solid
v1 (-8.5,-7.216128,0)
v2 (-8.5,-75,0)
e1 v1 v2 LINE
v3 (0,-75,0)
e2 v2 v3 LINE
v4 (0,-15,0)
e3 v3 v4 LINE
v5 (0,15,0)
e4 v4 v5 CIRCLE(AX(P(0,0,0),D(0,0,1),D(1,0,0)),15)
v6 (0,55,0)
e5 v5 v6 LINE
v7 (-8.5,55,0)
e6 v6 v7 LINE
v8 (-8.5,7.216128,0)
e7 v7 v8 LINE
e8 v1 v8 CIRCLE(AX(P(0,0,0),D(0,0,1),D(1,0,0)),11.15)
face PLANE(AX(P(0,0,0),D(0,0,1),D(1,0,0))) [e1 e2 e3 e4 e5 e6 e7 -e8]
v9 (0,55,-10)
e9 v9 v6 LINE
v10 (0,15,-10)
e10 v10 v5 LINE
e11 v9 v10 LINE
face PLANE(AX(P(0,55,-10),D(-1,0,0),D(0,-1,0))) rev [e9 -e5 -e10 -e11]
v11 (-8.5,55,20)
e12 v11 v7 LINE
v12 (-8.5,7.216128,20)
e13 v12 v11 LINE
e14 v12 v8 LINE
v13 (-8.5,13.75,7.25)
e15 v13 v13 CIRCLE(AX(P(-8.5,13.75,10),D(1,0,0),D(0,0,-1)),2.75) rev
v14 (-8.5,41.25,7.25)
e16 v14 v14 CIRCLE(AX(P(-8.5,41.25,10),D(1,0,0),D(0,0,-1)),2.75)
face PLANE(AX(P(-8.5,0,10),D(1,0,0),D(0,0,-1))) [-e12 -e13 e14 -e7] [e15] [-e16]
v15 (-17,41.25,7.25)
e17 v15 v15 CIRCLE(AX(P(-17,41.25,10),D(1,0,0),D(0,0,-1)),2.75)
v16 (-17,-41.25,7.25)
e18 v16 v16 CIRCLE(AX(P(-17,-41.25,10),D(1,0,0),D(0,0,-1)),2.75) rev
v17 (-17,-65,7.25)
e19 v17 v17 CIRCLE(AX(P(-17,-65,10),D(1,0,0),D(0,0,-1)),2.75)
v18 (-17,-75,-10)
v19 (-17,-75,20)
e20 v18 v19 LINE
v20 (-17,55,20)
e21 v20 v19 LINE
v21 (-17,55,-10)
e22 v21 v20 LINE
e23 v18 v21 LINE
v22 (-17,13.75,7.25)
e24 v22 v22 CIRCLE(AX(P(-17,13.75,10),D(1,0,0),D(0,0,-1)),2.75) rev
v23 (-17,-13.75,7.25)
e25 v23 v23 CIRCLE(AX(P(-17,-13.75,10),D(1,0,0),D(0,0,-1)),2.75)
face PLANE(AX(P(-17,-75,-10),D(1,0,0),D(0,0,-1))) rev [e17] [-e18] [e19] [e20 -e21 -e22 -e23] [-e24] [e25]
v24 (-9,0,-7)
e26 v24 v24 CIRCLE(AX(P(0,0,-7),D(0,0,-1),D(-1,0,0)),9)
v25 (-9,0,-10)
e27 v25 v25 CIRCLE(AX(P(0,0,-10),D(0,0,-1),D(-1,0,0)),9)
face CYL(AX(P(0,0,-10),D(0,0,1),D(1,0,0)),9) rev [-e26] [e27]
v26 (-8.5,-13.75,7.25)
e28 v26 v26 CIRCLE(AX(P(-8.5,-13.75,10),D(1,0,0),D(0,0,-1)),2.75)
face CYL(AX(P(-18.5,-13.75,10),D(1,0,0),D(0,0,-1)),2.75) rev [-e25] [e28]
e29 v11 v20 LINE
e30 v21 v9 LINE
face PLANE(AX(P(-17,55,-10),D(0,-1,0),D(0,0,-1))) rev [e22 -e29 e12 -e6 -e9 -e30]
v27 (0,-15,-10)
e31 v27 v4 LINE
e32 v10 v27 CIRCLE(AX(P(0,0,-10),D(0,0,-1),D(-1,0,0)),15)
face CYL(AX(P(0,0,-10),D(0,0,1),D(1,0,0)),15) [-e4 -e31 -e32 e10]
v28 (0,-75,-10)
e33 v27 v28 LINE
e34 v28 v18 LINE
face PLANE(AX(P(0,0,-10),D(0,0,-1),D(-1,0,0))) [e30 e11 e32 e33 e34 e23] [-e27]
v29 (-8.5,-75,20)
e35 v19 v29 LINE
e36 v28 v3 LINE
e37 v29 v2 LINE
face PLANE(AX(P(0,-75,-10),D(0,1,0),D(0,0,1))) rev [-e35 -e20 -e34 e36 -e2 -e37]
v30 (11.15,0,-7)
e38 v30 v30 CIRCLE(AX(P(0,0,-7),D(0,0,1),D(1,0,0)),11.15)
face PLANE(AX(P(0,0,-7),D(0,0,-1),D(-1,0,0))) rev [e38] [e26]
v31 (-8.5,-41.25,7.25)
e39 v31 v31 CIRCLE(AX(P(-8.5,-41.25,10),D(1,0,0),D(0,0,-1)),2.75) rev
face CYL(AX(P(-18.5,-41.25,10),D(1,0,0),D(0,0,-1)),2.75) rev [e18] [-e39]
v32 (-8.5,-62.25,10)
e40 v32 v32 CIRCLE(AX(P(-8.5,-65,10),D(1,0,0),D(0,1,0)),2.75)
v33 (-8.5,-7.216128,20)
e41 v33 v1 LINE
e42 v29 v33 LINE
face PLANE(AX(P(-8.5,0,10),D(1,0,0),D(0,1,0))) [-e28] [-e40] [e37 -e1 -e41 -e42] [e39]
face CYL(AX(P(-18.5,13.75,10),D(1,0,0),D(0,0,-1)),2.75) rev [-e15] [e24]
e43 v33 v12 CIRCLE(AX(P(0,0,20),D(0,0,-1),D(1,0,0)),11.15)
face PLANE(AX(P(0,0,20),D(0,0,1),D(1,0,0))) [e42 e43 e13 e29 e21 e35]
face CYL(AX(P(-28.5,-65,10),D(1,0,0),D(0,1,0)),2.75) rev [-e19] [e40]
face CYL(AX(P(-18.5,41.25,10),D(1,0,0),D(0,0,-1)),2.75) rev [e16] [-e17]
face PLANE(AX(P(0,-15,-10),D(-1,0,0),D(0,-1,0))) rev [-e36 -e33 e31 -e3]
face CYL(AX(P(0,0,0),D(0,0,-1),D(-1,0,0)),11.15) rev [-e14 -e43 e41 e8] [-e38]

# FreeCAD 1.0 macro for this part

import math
import FreeCAD as App
import Part
import Sketcher

V = App.Vector
Q = App.Units.Quantity

doc = App.newDocument("Part")
body = doc.addObject("PartDesign::Body", "Body")

sketch1 = body.newObject("Sketcher::SketchObject", "Sketch")
sketch1.AttachmentSupport = (doc.getObject("XY_Plane"), [""])
sketch1.MapMode = "FlatFace"
sketch1.AttachmentOffset = App.Placement(V(0, 0, -7), App.Rotation())
sketch1.addGeometry(Part.LineSegment(V(0, 55, 0), V(0, 15, 0)), False)
sketch1.addGeometry(Part.ArcOfCircle(Part.Circle(V(0, 0, 0), V(0, 0, 1), 15), math.radians(-90), math.radians(90)), False)
sketch1.addGeometry(Part.LineSegment(V(0, -15, 0), V(0, -75, 0)), False)
sketch1.addGeometry(Part.LineSegment(V(0, -75, 0), V(-17, -75, 0)), False)
sketch1.addGeometry(Part.LineSegment(V(-17, -75, 0), V(-17, 55, 0)), False)
sketch1.addGeometry(Part.LineSegment(V(-17, 55, 0), V(0, 55, 0)), False)
sketch1.addGeometry(Part.Circle(V(0, 0, 0), V(0, 0, 1), 9), False)
sketch1.addConstraint(Sketcher.Constraint("Coincident", 0, 2, 1, 2))
sketch1.addConstraint(Sketcher.Constraint("Coincident", 1, 1, 2, 1))
sketch1.addConstraint(Sketcher.Constraint("Coincident", 2, 2, 3, 1))
sketch1.addConstraint(Sketcher.Constraint("Coincident", 3, 2, 4, 1))
sketch1.addConstraint(Sketcher.Constraint("Coincident", 4, 2, 5, 1))
sketch1.addConstraint(Sketcher.Constraint("Coincident", 5, 2, 0, 1))
sketch1.addConstraint(Sketcher.Constraint("Vertical", 0))
sketch1.addConstraint(Sketcher.Constraint("Vertical", 2))
sketch1.addConstraint(Sketcher.Constraint("Horizontal", 3))
sketch1.addConstraint(Sketcher.Constraint("Vertical", 4))
sketch1.addConstraint(Sketcher.Constraint("Horizontal", 5))
sketch1.addConstraint(Sketcher.Constraint("Coincident", 1, 3, -1, 1))
sketch1.addConstraint(Sketcher.Constraint("Coincident", 6, 3, -1, 1))
sketch1.addConstraint(Sketcher.Constraint("PointOnObject", 0, 2, -2))
sketch1.addConstraint(Sketcher.Constraint("PointOnObject", 1, 1, -2))
sketch1.addConstraint(Sketcher.Constraint("Diameter", 6, Q("18 mm")))
sketch1.addConstraint(Sketcher.Constraint("Radius", 1, Q("15 mm")))
sketch1.addConstraint(Sketcher.Constraint("DistanceX", 3, 2, 3, 1, Q("17 mm")))
sketch1.addConstraint(Sketcher.Constraint("DistanceY", 0, 2, 0, 1, Q("40 mm")))
sketch1.addConstraint(Sketcher.Constraint("DistanceY", 2, 2, 2, 1, Q("60 mm")))
pad1 = body.newObject("PartDesign::Pad", "Pad")
pad1.Profile = sketch1
pad1.Length = 3
pad1.Reversed = True

sketch2 = body.newObject("Sketcher::SketchObject", "Sketch001")
sketch2.AttachmentSupport = (doc.getObject("XY_Plane"), [""])
sketch2.MapMode = "FlatFace"
sketch2.addGeometry(Part.LineSegment(V(0, -55, 0), V(0, -15, 0)), False)
sketch2.addGeometry(Part.ArcOfCircle(Part.Circle(V(0, 0, 0), V(0, 0, 1), 15), math.radians(-90), math.radians(90)), False)
sketch2.addGeometry(Part.LineSegment(V(0, 15, 0), V(0, 55, 0)), False)
sketch2.addGeometry(Part.LineSegment(V(0, 55, 0), V(-17, 55, 0)), False)
sketch2.addGeometry(Part.LineSegment(V(-17, 55, 0), V(-17, -55, 0)), False)
sketch2.addGeometry(Part.LineSegment(V(-17, -55, 0), V(0, -55, 0)), False)
sketch2.addGeometry(Part.Circle(V(0, 0, 0), V(0, 0, 1), 11), False)
sketch2.addConstraint(Sketcher.Constraint("Coincident", 0, 2, 1, 1))
sketch2.addConstraint(Sketcher.Constraint("Coincident", 1, 2, 2, 1))
sketch2.addConstraint(Sketcher.Constraint("Coincident", 2, 2, 3, 1))
sketch2.addConstraint(Sketcher.Constraint("Coincident", 3, 2, 4, 1))
sketch2.addConstraint(Sketcher.Constraint("Coincident", 4, 2, 5, 1))
sketch2.addConstraint(Sketcher.Constraint("Coincident", 5, 2, 0, 1))
sketch2.addConstraint(Sketcher.Constraint("Vertical", 0))
sketch2.addConstraint(Sketcher.Constraint("Vertical", 2))
sketch2.addConstraint(Sketcher.Constraint("Horizontal", 3))
sketch2.addConstraint(Sketcher.Constraint("Vertical", 4))
sketch2.addConstraint(Sketcher.Constraint("Horizontal", 5))
sketch2.addConstraint(Sketcher.Constraint("Coincident", 1, 3, -1, 1))
sketch2.addConstraint(Sketcher.Constraint("Coincident", 6, 3, -1, 1))
sketch2.addConstraint(Sketcher.Constraint("Symmetric", 2, 2, 5, 2, -1, 1))
sketch2.addConstraint(Sketcher.Constraint("PointOnObject", 0, 2, -2))
sketch2.addConstraint(Sketcher.Constraint("Radius", 1, Q("15 mm")))
sketch2.addConstraint(Sketcher.Constraint("Diameter", 6, Q("22.3 mm")))
sketch2.addConstraint(Sketcher.Constraint("DistanceX", 3, 2, 3, 1, Q("17 mm")))
sketch2.addConstraint(Sketcher.Constraint("DistanceY", 0, 1, 0, 2, Q("40 mm")))
pad2 = body.newObject("PartDesign::Pad", "Pad001")
pad2.Profile = sketch2
pad2.Length = 7
pad2.Reversed = True

sketch3 = body.newObject("Sketcher::SketchObject", "Sketch002")
sketch3.AttachmentSupport = (doc.getObject("XY_Plane"), [""])
sketch3.MapMode = "FlatFace"
sketch3.AttachmentOffset = App.Placement(V(0, 0, 10), App.Rotation())
sketch3.addGeometry(Part.LineSegment(V(-8, 7, 0), V(-8, 55, 0)), False)
sketch3.addGeometry(Part.LineSegment(V(-8, 55, 0), V(-17, 55, 0)), False)
sketch3.addGeometry(Part.LineSegment(V(-17, 55, 0), V(-17, -55, 0)), False)
sketch3.addGeometry(Part.LineSegment(V(-17, -55, 0), V(-8, -55, 0)), False)
sketch3.addGeometry(Part.LineSegment(V(-8, -55, 0), V(-8, -7, 0)), False)
sketch3.addGeometry(Part.ArcOfCircle(Part.Circle(V(0, 0, 0), V(0, 0, 1), 11), math.radians(140), math.radians(220)), False)
sketch3.addConstraint(Sketcher.Constraint("Coincident", 0, 2, 1, 1))
sketch3.addConstraint(Sketcher.Constraint("Coincident", 1, 2, 2, 1))
sketch3.addConstraint(Sketcher.Constraint("Coincident", 2, 2, 3, 1))
sketch3.addConstraint(Sketcher.Constraint("Coincident", 3, 2, 4, 1))
sketch3.addConstraint(Sketcher.Constraint("Coincident", 4, 2, 5, 2))
sketch3.addConstraint(Sketcher.Constraint("Coincident", 5, 1, 0, 1))
sketch3.addConstraint(Sketcher.Constraint("Vertical", 0))
sketch3.addConstraint(Sketcher.Constraint("Horizontal", 1))
sketch3.addConstraint(Sketcher.Constraint("Vertical", 2))
sketch3.addConstraint(Sketcher.Constraint("Horizontal", 3))
sketch3.addConstraint(Sketcher.Constraint("Vertical", 4))
sketch3.addConstraint(Sketcher.Constraint("Coincident", 5, 3, -1, 1))
sketch3.addConstraint(Sketcher.Constraint("Symmetric", 0, 2, 3, 2, -1))
sketch3.addConstraint(Sketcher.Constraint("DistanceY", 2, 2, 2, 1, Q("110 mm")))
sketch3.addConstraint(Sketcher.Constraint("Radius", 5, Q("11.15 mm")))
sketch3.addConstraint(Sketcher.Constraint("DistanceX", 1, 2, 1, 1, Q("8.5 mm")))
sketch3.addConstraint(Sketcher.Constraint("DistanceX", 1, 2, -1, 1, Q("17 mm")))
pad3 = body.newObject("PartDesign::Pad", "Pad002")
pad3.Profile = sketch3
pad3.Length = 10
pad3.Reversed = True

sketch4 = body.newObject("Sketcher::SketchObject", "Sketch003")
sketch4.AttachmentSupport = (doc.getObject("XY_Plane"), [""])
sketch4.MapMode = "FlatFace"
sketch4.AttachmentOffset = App.Placement(V(0, 0, 20), App.Rotation())
sketch4.addGeometry(Part.LineSegment(V(-8, 7, 0), V(-8, 55, 0)), False)
sketch4.addGeometry(Part.LineSegment(V(-8, 55, 0), V(-17, 55, 0)), False)
sketch4.addGeometry(Part.LineSegment(V(-17, 55, 0), V(-17, -55, 0)), False)
sketch4.addGeometry(Part.LineSegment(V(-17, -55, 0), V(-8, -55, 0)), False)
sketch4.addGeometry(Part.LineSegment(V(-8, -55, 0), V(-8, -7, 0)), False)
sketch4.addGeometry(Part.ArcOfCircle(Part.Circle(V(0, 0, 0), V(0, 0, 1), 11), math.radians(140), math.radians(220)), False)
sketch4.addConstraint(Sketcher.Constraint("Coincident", 0, 2, 1, 1))
sketch4.addConstraint(Sketcher.Constraint("Coincident", 1, 2, 2, 1))
sketch4.addConstraint(Sketcher.Constraint("Coincident", 2, 2, 3, 1))
sketch4.addConstraint(Sketcher.Constraint("Coincident", 3, 2, 4, 1))
sketch4.addConstraint(Sketcher.Constraint("Coincident", 4, 2, 5, 2))
sketch4.addConstraint(Sketcher.Constraint("Coincident", 5, 1, 0, 1))
sketch4.addConstraint(Sketcher.Constraint("Vertical", 0))
sketch4.addConstraint(Sketcher.Constraint("Horizontal", 1))
sketch4.addConstraint(Sketcher.Constraint("Vertical", 2))
sketch4.addConstraint(Sketcher.Constraint("Horizontal", 3))
sketch4.addConstraint(Sketcher.Constraint("Vertical", 4))
sketch4.addConstraint(Sketcher.Constraint("Coincident", 5, 3, -1, 1))
sketch4.addConstraint(Sketcher.Constraint("Symmetric", 0, 2, 3, 2, -1))
sketch4.addConstraint(Sketcher.Constraint("DistanceY", 2, 2, 2, 1, Q("110 mm")))
sketch4.addConstraint(Sketcher.Constraint("Radius", 5, Q("11.15 mm")))
sketch4.addConstraint(Sketcher.Constraint("DistanceX", 1, 2, 1, 1, Q("8.5 mm")))
sketch4.addConstraint(Sketcher.Constraint("DistanceX", 1, 2, -1, 1, Q("17 mm")))
pad4 = body.newObject("PartDesign::Pad", "Pad003")
pad4.Profile = sketch4
pad4.Length = 10
pad4.Reversed = True

sketch5 = body.newObject("Sketcher::SketchObject", "Sketch004")
sketch5.AttachmentSupport = (doc.getObject("YZ_Plane"), [""])
sketch5.MapMode = "FlatFace"
sketch5.AttachmentOffset = App.Placement(V(0, 0, -8.5), App.Rotation())
sketch5.addGeometry(Part.ArcOfCircle(Part.Circle(V(41.2, 10, 0), V(0, 0, 1), 2.8), math.radians(-90), math.radians(0)), False)
sketch5.addGeometry(Part.LineSegment(V(44, 10, 0), V(38.5, 10, 0)), False)
sketch5.addGeometry(Part.ArcOfCircle(Part.Circle(V(41.3, 10, 0), V(0, 0, 1), 2.8), math.radians(-180), math.radians(-90)), False)
sketch5.addGeometry(Part.LineSegment(V(38.5, 10, 0), V(44, 10, 0)), False)
sketch5.addGeometry(Part.ArcOfCircle(Part.Circle(V(41.2, 10, 0), V(0, 0, 1), 2.8), math.radians(0), math.radians(180)), False)
sketch5.addGeometry(Part.Circle(V(13.8, 10, 0), V(0, 0, 1), 2.8), False)
sketch5.addGeometry(Part.Circle(V(-13.8, 10, 0), V(0, 0, 1), 2.8), False)
sketch5.addGeometry(Part.Circle(V(-41.2, 10, 0), V(0, 0, 1), 2.8), False)
sketch5.addConstraint(Sketcher.Constraint("Coincident", 0, 2, 1, 1))
sketch5.addConstraint(Sketcher.Constraint("Coincident", 1, 2, 2, 1))
sketch5.addConstraint(Sketcher.Constraint("Tangent", 2, 2, 0, 1))
sketch5.addConstraint(Sketcher.Constraint("Coincident", 3, 1, 4, 2))
sketch5.addConstraint(Sketcher.Constraint("Coincident", 4, 1, 3, 2))
sketch5.addConstraint(Sketcher.Constraint("Horizontal", 1))
sketch5.addConstraint(Sketcher.Constraint("Horizontal", 3))
sketch5.addConstraint(Sketcher.Constraint("Coincident", 4, 3, 0, 3))
sketch5.addConstraint(Sketcher.Constraint("Coincident", 3, 1, 1, 2))
sketch5.addConstraint(Sketcher.Constraint("Equal", 0, 2))
sketch5.addConstraint(Sketcher.Constraint("Equal", 4, 5))
sketch5.addConstraint(Sketcher.Constraint("Equal", 5, 6))
sketch5.addConstraint(Sketcher.Constraint("Equal", 6, 7))
sketch5.addConstraint(Sketcher.Constraint("Symmetric", 5, 3, 6, 3, -2))
sketch5.addConstraint(Sketcher.Constraint("Symmetric", 0, 3, 7, 3, -2))
sketch5.addConstraint(Sketcher.Constraint("Horizontal", 4, 3, 5, 3))
sketch5.addConstraint(Sketcher.Constraint("Horizontal", 7, 3, 0, 2))
sketch5.addConstraint(Sketcher.Constraint("Vertical", 4, 3, 2, 2))
sketch5.addConstraint(Sketcher.Constraint("Diameter", 5, Q("5.5 mm")))
sketch5.addConstraint(Sketcher.Constraint("DistanceY", -1, 1, 0, 3, Q("10 mm")))
sketch5.addConstraint(Sketcher.Constraint("DistanceX", -1, 1, 0, 2, Q("44 mm")))
sketch5.addConstraint(Sketcher.Constraint("DistanceX", 6, 3, 0, 3, Q("55 mm")))
pocket1 = body.newObject("PartDesign::Pocket", "Pocket")
pocket1.Profile = sketch5
pocket1.Length = 10

sketch6 = body.newObject("Sketcher::SketchObject", "Sketch005")
sketch6.AttachmentSupport = (doc.getObject("XY_Plane"), [""])
sketch6.MapMode = "FlatFace"
sketch6.AttachmentOffset = App.Placement(V(0, 0, -7), App.Rotation())
sketch6.addGeometry(Part.LineSegment(V(-17, -55, 0), V(-17, -75, 0)), False)
sketch6.addGeometry(Part.LineSegment(V(-17, -75, 0), V(0, -75, 0)), False)
sketch6.addGeometry(Part.LineSegment(V(0, -75, 0), V(0, -55, 0)), False)
sketch6.addGeometry(Part.LineSegment(V(0, -55, 0), V(-17, -55, 0)), False)
sketch6.addConstraint(Sketcher.Constraint("Coincident", 0, 2, 1, 1))
sketch6.addConstraint(Sketcher.Constraint("Coincident", 1, 2, 2, 1))
sketch6.addConstraint(Sketcher.Constraint("Coincident", 2, 2, 3, 1))
sketch6.addConstraint(Sketcher.Constraint("Coincident", 3, 2, 0, 1))
sketch6.addConstraint(Sketcher.Constraint("Vertical", 0))
sketch6.addConstraint(Sketcher.Constraint("Horizontal", 1))
sketch6.addConstraint(Sketcher.Constraint("Vertical", 2))
sketch6.addConstraint(Sketcher.Constraint("Horizontal", 3))
sketch6.addConstraint(Sketcher.Constraint("PointOnObject", 1, 2, -2))
sketch6.addConstraint(Sketcher.Constraint("DistanceX", 1, 1, 1, 2, Q("17 mm")))
sketch6.addConstraint(Sketcher.Constraint("DistanceY", 0, 2, 0, 1, Q("20 mm")))
sketch6.addConstraint(Sketcher.Constraint("DistanceY", 0, 2, -1, 1, Q("75 mm")))
pad5 = body.newObject("PartDesign::Pad", "Pad004")
pad5.Profile = sketch6
pad5.Length = 7

sketch7 = body.newObject("Sketcher::SketchObject", "Sketch006")
sketch7.AttachmentSupport = (doc.getObject("XZ_Plane"), [""])
sketch7.MapMode = "FlatFace"
sketch7.AttachmentOffset = App.Placement(V(0, 0, 55), App.Rotation())
sketch7.addGeometry(Part.LineSegment(V(-17, 20, 0), V(-17, 0, 0)), False)
sketch7.addGeometry(Part.LineSegment(V(-17, 0, 0), V(-8, 0, 0)), False)
sketch7.addGeometry(Part.LineSegment(V(-8, 0, 0), V(-8, 20, 0)), False)
sketch7.addGeometry(Part.LineSegment(V(-8, 20, 0), V(-17, 20, 0)), False)
sketch7.addConstraint(Sketcher.Constraint("Coincident", 0, 2, 1, 1))
sketch7.addConstraint(Sketcher.Constraint("Coincident", 1, 2, 2, 1))
sketch7.addConstraint(Sketcher.Constraint("Coincident", 2, 2, 3, 1))
sketch7.addConstraint(Sketcher.Constraint("Coincident", 3, 2, 0, 1))
sketch7.addConstraint(Sketcher.Constraint("Vertical", 0))
sketch7.addConstraint(Sketcher.Constraint("Horizontal", 1))
sketch7.addConstraint(Sketcher.Constraint("Vertical", 2))
sketch7.addConstraint(Sketcher.Constraint("Horizontal", 3))
sketch7.addConstraint(Sketcher.Constraint("PointOnObject", 0, 2, -1))
sketch7.addConstraint(Sketcher.Constraint("DistanceY", 0, 2, 0, 1, Q("20 mm")))
sketch7.addConstraint(Sketcher.Constraint("DistanceX", 1, 1, 1, 2, Q("8.5 mm")))
sketch7.addConstraint(Sketcher.Constraint("DistanceX", 0, 2, -1, 1, Q("17 mm")))
pad6 = body.newObject("PartDesign::Pad", "Pad005")
pad6.Profile = sketch7
pad6.Length = 20

sketch8 = body.newObject("Sketcher::SketchObject", "Sketch007")
sketch8.AttachmentSupport = (doc.getObject("YZ_Plane"), [""])
sketch8.MapMode = "FlatFace"
sketch8.AttachmentOffset = App.Placement(V(0, 0, -8.5), App.Rotation())
sketch8.addGeometry(Part.Circle(V(-65, 10, 0), V(0, 0, 1), 2.8), False)
sketch8.addConstraint(Sketcher.Constraint("Diameter", 0, Q("5.5 mm")))
sketch8.addConstraint(Sketcher.Constraint("DistanceX", 0, 3, -1, 1, Q("65 mm")))
sketch8.addConstraint(Sketcher.Constraint("DistanceY", -1, 1, 0, 3, Q("10 mm")))
pocket2 = body.newObject("PartDesign::Pocket", "Pocket001")
pocket2.Profile = sketch8
pocket2.Length = 20

doc.recompute()
